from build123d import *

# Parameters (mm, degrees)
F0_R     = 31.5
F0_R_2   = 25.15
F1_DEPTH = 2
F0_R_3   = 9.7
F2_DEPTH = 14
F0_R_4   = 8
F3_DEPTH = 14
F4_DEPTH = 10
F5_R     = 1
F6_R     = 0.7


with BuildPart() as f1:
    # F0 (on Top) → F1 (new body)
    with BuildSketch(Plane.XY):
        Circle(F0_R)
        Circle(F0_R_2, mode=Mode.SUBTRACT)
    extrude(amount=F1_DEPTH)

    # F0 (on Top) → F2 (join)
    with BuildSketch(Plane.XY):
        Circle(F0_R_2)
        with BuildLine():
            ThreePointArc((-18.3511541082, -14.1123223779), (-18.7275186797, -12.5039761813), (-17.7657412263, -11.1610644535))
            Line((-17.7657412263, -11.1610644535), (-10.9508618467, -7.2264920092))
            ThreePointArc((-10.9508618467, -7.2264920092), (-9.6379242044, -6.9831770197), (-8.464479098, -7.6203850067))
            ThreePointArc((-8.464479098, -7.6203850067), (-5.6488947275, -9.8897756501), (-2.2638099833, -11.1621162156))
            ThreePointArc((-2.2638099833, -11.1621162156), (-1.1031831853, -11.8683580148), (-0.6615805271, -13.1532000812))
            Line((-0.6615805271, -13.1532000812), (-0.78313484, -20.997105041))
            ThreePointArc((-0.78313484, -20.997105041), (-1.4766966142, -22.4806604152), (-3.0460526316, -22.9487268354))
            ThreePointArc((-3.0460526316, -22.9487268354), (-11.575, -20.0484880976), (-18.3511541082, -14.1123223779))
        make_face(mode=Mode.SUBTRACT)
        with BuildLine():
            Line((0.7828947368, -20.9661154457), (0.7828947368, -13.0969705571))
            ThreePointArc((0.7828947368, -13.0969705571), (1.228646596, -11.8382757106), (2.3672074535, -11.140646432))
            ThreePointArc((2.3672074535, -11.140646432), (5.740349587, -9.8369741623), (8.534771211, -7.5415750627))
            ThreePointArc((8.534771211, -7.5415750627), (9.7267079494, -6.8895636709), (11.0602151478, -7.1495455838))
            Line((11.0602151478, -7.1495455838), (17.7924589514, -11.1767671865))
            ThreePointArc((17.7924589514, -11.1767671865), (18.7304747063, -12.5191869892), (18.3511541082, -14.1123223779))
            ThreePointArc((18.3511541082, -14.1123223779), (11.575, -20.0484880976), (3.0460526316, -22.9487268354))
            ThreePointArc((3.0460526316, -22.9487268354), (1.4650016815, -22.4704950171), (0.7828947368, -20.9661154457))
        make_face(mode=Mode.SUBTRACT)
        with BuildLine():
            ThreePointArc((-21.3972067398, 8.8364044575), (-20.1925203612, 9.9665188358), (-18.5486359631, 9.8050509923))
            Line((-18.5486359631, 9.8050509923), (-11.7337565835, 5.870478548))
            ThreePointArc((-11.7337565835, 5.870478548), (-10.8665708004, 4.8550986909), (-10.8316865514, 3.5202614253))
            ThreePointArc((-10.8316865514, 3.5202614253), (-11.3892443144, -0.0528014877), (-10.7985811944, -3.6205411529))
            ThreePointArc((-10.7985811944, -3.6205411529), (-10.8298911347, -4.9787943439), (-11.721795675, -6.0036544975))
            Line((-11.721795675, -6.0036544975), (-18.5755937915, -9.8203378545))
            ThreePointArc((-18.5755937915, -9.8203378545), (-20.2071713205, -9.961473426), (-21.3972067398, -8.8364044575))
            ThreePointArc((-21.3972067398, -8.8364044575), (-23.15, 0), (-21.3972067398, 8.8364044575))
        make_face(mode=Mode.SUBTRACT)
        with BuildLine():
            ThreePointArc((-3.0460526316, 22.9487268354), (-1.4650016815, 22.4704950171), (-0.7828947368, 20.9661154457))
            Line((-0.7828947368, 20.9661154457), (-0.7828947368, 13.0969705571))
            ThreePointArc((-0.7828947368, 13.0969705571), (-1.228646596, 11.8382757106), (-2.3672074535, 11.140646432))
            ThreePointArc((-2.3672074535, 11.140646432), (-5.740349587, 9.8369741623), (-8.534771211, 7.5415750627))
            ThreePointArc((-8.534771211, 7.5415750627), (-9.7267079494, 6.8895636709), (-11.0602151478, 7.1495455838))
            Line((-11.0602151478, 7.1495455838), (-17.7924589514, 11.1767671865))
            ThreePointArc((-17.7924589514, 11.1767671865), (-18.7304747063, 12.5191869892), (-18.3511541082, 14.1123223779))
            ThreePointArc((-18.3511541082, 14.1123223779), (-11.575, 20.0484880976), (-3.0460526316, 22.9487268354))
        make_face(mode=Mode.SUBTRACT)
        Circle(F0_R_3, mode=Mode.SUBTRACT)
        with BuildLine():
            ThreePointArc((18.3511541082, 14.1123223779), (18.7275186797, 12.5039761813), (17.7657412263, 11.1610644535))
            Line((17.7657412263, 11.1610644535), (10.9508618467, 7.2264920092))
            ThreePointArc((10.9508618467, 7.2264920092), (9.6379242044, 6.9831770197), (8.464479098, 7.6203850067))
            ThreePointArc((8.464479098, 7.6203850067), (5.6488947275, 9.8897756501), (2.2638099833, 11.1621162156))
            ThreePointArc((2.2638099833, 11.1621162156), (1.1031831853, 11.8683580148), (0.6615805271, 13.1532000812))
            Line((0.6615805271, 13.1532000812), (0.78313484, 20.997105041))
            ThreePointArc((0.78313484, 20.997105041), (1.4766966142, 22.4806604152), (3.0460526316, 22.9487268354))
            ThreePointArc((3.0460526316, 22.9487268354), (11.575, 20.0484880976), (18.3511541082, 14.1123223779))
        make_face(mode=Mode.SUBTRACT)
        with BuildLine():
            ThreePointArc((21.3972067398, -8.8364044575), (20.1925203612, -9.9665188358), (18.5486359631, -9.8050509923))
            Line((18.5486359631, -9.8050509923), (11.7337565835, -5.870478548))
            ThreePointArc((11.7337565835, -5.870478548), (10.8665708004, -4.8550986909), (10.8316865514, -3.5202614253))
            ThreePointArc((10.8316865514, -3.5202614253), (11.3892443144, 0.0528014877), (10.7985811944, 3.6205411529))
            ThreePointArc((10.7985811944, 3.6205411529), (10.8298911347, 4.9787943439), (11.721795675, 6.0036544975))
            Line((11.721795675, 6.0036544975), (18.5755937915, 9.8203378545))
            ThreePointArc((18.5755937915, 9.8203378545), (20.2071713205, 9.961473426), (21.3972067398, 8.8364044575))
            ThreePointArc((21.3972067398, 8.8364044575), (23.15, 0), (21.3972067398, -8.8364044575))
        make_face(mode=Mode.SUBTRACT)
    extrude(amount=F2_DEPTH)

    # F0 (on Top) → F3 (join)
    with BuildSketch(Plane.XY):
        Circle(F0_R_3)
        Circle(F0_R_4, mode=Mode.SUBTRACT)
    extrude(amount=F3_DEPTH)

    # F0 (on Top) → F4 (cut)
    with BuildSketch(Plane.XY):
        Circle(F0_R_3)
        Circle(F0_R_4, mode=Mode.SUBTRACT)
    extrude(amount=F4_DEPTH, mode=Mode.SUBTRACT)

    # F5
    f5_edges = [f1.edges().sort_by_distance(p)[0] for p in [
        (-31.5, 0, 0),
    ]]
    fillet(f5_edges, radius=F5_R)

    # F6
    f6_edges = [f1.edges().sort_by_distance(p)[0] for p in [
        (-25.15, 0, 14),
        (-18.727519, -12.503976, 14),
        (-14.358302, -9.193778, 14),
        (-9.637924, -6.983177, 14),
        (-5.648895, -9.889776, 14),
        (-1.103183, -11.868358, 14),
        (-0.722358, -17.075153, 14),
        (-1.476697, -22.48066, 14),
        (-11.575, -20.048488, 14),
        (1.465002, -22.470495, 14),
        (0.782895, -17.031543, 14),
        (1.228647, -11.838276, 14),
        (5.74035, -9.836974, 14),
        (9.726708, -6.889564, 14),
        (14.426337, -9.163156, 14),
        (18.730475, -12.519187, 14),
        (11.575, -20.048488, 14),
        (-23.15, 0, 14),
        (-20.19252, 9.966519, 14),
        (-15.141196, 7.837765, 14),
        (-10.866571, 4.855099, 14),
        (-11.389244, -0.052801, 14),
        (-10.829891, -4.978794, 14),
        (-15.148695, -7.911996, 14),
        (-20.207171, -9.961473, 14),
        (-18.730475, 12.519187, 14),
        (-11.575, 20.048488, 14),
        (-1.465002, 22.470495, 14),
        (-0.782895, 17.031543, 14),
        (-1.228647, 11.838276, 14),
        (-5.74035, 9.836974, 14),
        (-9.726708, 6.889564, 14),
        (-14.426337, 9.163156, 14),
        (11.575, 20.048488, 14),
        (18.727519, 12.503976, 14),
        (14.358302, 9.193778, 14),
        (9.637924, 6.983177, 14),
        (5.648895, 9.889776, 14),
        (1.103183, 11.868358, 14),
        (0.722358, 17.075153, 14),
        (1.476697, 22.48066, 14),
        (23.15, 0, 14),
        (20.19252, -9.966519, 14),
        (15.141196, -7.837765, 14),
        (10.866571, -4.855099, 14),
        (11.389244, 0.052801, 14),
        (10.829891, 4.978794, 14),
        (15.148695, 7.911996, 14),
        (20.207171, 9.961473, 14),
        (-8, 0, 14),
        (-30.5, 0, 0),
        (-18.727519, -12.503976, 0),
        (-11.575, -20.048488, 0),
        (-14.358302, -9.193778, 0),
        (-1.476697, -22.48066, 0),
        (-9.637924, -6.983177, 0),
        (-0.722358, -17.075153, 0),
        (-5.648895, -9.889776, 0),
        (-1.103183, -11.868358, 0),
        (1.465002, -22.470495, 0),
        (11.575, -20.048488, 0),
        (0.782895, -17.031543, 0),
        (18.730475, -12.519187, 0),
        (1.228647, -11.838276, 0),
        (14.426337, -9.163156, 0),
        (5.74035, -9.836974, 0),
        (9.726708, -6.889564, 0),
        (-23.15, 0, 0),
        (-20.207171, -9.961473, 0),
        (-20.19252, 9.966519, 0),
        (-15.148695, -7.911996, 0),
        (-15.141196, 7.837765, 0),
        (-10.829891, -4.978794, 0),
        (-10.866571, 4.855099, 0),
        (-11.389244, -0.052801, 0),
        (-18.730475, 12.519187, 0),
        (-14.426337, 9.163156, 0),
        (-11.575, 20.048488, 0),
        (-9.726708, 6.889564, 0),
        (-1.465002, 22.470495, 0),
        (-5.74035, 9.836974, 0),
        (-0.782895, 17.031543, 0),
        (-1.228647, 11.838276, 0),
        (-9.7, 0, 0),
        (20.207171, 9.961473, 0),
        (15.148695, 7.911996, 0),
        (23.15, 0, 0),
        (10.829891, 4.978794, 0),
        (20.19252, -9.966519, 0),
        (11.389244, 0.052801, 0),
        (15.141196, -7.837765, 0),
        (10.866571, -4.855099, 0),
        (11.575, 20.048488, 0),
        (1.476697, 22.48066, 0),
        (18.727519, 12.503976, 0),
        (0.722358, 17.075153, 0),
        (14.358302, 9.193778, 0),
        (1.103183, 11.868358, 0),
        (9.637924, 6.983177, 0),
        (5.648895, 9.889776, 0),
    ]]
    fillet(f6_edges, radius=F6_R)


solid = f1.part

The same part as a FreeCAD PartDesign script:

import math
import FreeCAD as App
import Part
import Sketcher
from FreeCAD import Vector
Q = App.Units.Quantity


def edges_at(feature, points):
    """Names of the edges that pass closest to the given points."""
    edges = feature.Shape.Edges
    near = lambda p: min(range(len(edges)), key=lambda i: edges[i].distToShape(Part.Vertex(*p))[0])
    return sorted({f"Edge{near(p) + 1}" for p in points})

doc = App.newDocument("Part")
body = doc.addObject("PartDesign::Body", "Body")

# Sketch on XY plane
sketch1 = doc.addObject("Sketcher::SketchObject", "Sketch")
body.addObject(sketch1)
sketch1.AttachmentSupport = (doc.XY_Plane, [""])
sketch1.MapMode = "FlatFace"
sketch1.addGeometry([
    Part.Circle(Vector(0, 0, 0), Vector(0, 0, 1), 31.5),
    Part.Circle(Vector(0, 0, 0), Vector(0, 0, 1), 25.15),
], False)
sketch1.addConstraint([
    Sketcher.Constraint("Coincident", 0, 3, -1, 1),
    Sketcher.Constraint("Coincident", 1, 3, -1, 1),
    Sketcher.Constraint("Diameter", 0, Q("63 mm")),
    Sketcher.Constraint("Diameter", 1, Q("50.3 mm")),
])
pad1 = doc.addObject("PartDesign::Pad", "Pad")
body.addObject(pad1)
pad1.Profile = sketch1
pad1.Length = 2

# Sketch on XY plane
sketch2 = doc.addObject("Sketcher::SketchObject", "Sketch001")
body.addObject(sketch2)
sketch2.AttachmentSupport = (doc.XY_Plane, [""])
sketch2.MapMode = "FlatFace"
sketch2.addGeometry([
    Part.Circle(Vector(0, 0, 0), Vector(0, 0, 1), 25.15),  # 0
    Part.ArcOfCircle(Part.Circle(Vector(0, 0, 0), Vector(0, 0, 1), 23.15), math.radians(-142.439157), math.radians(-97.560843)),  # 1
    Part.ArcOfCircle(Part.Circle(Vector(-16.765741, -12.893115, 0), Vector(0, 0, 1), 2), math.radians(120), math.radians(217.560843)),  # 2
    Part.LineSegment(Vector(-17.765741, -11.161064, 0), Vector(-10.950862, -7.226492, 0)),  # 3
    Part.ArcOfCircle(Part.Circle(Vector(-9.950862, -8.958543, 0), Vector(0, 0, 1), 2), math.radians(41.996014), math.radians(120)),  # 4
    Part.ArcOfCircle(Part.Circle(Vector(0, 0, 0), Vector(0, 0, 1), 11.389367), math.radians(-138.003986), math.radians(-101.464762)),  # 5
    Part.ArcOfCircle(Part.Circle(Vector(-2.66134, -13.12221, 0), Vector(0, 0, 1), 2), math.radians(-0.887822), math.radians(78.535238)),  # 6
    Part.LineSegment(Vector(-0.661581, -13.1532, 0), Vector(-0.783135, -20.997105, 0)),  # 7
    Part.ArcOfCircle(Part.Circle(Vector(-2.782895, -20.966115, 0), Vector(0, 0, 1), 2), math.radians(-97.560843), math.radians(-0.887822)),  # 8
    Part.ArcOfCircle(Part.Circle(Vector(2.782895, -20.966115, 0), Vector(0, 0, 1), 2), math.radians(180), math.radians(277.560843)),  # 9
    Part.LineSegment(Vector(0.782895, -20.966115, 0), Vector(0.782895, -13.096971, 0)),  # 10
    Part.ArcOfCircle(Part.Circle(Vector(2.782895, -13.096971, 0), Vector(0, 0, 1), 2), math.radians(101.996014), math.radians(180)),  # 11
    Part.ArcOfCircle(Part.Circle(Vector(0, 0, 0), Vector(0, 0, 1), 11.389367), math.radians(-78.003986), math.radians(-41.464762)),  # 12
    Part.ArcOfCircle(Part.Circle(Vector(10.033497, -8.865894, 0), Vector(0, 0, 1), 2), math.radians(59.112178), math.radians(138.535238)),  # 13
    Part.LineSegment(Vector(11.060215, -7.149546, 0), Vector(17.792459, -11.176767, 0)),  # 14
    Part.ArcOfCircle(Part.Circle(Vector(16.765741, -12.893115, 0), Vector(0, 0, 1), 2), math.radians(-37.560843), math.radians(59.112178)),  # 15
    Part.ArcOfCircle(Part.Circle(Vector(0, 0, 0), Vector(0, 0, 1), 23.15), math.radians(-82.439157), math.radians(-37.560843)),  # 16
    Part.Circle(Vector(0, 0, 0), Vector(0, 0, 1), 9.7),  # 17
    Part.ArcOfCircle(Part.Circle(Vector(0, 0, 0), Vector(0, 0, 1), 23.15), math.radians(-22.439157), math.radians(22.439157)),  # 18
    Part.ArcOfCircle(Part.Circle(Vector(19.548636, -8.073, 0), Vector(0, 0, 1), 2), math.radians(-120), math.radians(-22.439157)),  # 19
    Part.LineSegment(Vector(18.548636, -9.805051, 0), Vector(11.733757, -5.870479, 0)),  # 20
    Part.ArcOfCircle(Part.Circle(Vector(12.733757, -4.138428, 0), Vector(0, 0, 1), 2), math.radians(161.996014), math.radians(240)),  # 21
    Part.ArcOfCircle(Part.Circle(Vector(0, 0, 0), Vector(0, 0, 1), 11.389367), math.radians(-18.003986), math.radians(18.535238)),  # 22
    Part.ArcOfCircle(Part.Circle(Vector(12.694838, 4.256317, 0), Vector(0, 0, 1), 2), math.radians(119.112178), math.radians(198.535238)),  # 23
    Part.LineSegment(Vector(11.721796, 6.003654, 0), Vector(18.575594, 9.820338, 0)),  # 24
    Part.ArcOfCircle(Part.Circle(Vector(19.548636, 8.073, 0), Vector(0, 0, 1), 2), math.radians(22.439157), math.radians(119.112178)),  # 25
    Part.ArcOfCircle(Part.Circle(Vector(0, 0, 0), Vector(0, 0, 1), 23.15), math.radians(157.560843), math.radians(202.439157)),  # 26
    Part.ArcOfCircle(Part.Circle(Vector(-19.548636, 8.073, 0), Vector(0, 0, 1), 2), math.radians(60), math.radians(157.560843)),  # 27
    Part.LineSegment(Vector(-18.548636, 9.805051, 0), Vector(-11.733757, 5.870479, 0)),  # 28
    Part.ArcOfCircle(Part.Circle(Vector(-12.733757, 4.138428, 0), Vector(0, 0, 1), 2), math.radians(-18.003986), math.radians(60)),  # 29
    Part.ArcOfCircle(Part.Circle(Vector(0, 0, 0), Vector(0, 0, 1), 11.389367), math.radians(161.996014), math.radians(198.535238)),  # 30
    Part.ArcOfCircle(Part.Circle(Vector(-12.694838, -4.256317, 0), Vector(0, 0, 1), 2), math.radians(-60.887822), math.radians(18.535238)),  # 31
    Part.LineSegment(Vector(-11.721796, -6.003654, 0), Vector(-18.575594, -9.820338, 0)),  # 32
    Part.ArcOfCircle(Part.Circle(Vector(-19.548636, -8.073, 0), Vector(0, 0, 1), 2), math.radians(-157.560843), math.radians(-60.887822)),  # 33
    Part.ArcOfCircle(Part.Circle(Vector(0, 0, 0), Vector(0, 0, 1), 23.15), math.radians(97.560843), math.radians(142.439157)),  # 34
    Part.ArcOfCircle(Part.Circle(Vector(-2.782895, 20.966115, 0), Vector(0, 0, 1), 2), math.radians(0), math.radians(97.560843)),  # 35
    Part.LineSegment(Vector(-0.782895, 20.966115, 0), Vector(-0.782895, 13.096971, 0)),  # 36
    Part.ArcOfCircle(Part.Circle(Vector(-2.782895, 13.096971, 0), Vector(0, 0, 1), 2), math.radians(-78.003986), math.radians(0)),  # 37
    Part.ArcOfCircle(Part.Circle(Vector(0, 0, 0), Vector(0, 0, 1), 11.389367), math.radians(101.996014), math.radians(138.535238)),  # 38
    Part.ArcOfCircle(Part.Circle(Vector(-10.033497, 8.865894, 0), Vector(0, 0, 1), 2), math.radians(-120.887822), math.radians(-41.464762)),  # 39
    Part.LineSegment(Vector(-11.060215, 7.149546, 0), Vector(-17.792459, 11.176767, 0)),  # 40
    Part.ArcOfCircle(Part.Circle(Vector(-16.765741, 12.893115, 0), Vector(0, 0, 1), 2), math.radians(142.439157), math.radians(239.112178)),  # 41
    Part.ArcOfCircle(Part.Circle(Vector(0, 0, 0), Vector(0, 0, 1), 23.15), math.radians(37.560843), math.radians(82.439157)),  # 42
    Part.ArcOfCircle(Part.Circle(Vector(16.765741, 12.893115, 0), Vector(0, 0, 1), 2), math.radians(-60), math.radians(37.560843)),  # 43
    Part.LineSegment(Vector(17.765741, 11.161064, 0), Vector(10.950862, 7.226492, 0)),  # 44
    Part.ArcOfCircle(Part.Circle(Vector(9.950862, 8.958543, 0), Vector(0, 0, 1), 2), math.radians(-138.003986), math.radians(-60)),  # 45
    Part.ArcOfCircle(Part.Circle(Vector(0, 0, 0), Vector(0, 0, 1), 11.389367), math.radians(41.996014), math.radians(78.535238)),  # 46
    Part.ArcOfCircle(Part.Circle(Vector(2.66134, 13.12221, 0), Vector(0, 0, 1), 2), math.radians(179.112178), math.radians(258.535238)),  # 47
    Part.LineSegment(Vector(0.661581, 13.1532, 0), Vector(0.783135, 20.997105, 0)),  # 48
    Part.ArcOfCircle(Part.Circle(Vector(2.782895, 20.966115, 0), Vector(0, 0, 1), 2), math.radians(82.439157), math.radians(179.112178)),  # 49
], False)
sketch2.addConstraint([
    Sketcher.Constraint("Tangent", 1, 1, 2, 2),
    Sketcher.Constraint("Tangent", 2, 1, 3, 1),
    Sketcher.Constraint("Tangent", 3, 2, 4, 2),
    Sketcher.Constraint("Tangent", 4, 1, 5, 1),
    Sketcher.Constraint("Tangent", 5, 2, 6, 2),
    Sketcher.Constraint("Tangent", 6, 1, 7, 1),
    Sketcher.Constraint("Tangent", 7, 2, 8, 2),
    Sketcher.Constraint("Tangent", 8, 1, 1, 2),
    Sketcher.Constraint("Tangent", 9, 1, 10, 1),
    Sketcher.Constraint("Tangent", 10, 2, 11, 2),
    Sketcher.Constraint("Tangent", 11, 1, 12, 1),
    Sketcher.Constraint("Tangent", 12, 2, 13, 2),
    Sketcher.Constraint("Tangent", 13, 1, 14, 1),
    Sketcher.Constraint("Tangent", 14, 2, 15, 2),
    Sketcher.Constraint("Tangent", 15, 1, 16, 2),
    Sketcher.Constraint("Tangent", 16, 1, 9, 2),
    Sketcher.Constraint("Tangent", 18, 1, 19, 2),
    Sketcher.Constraint("Tangent", 19, 1, 20, 1),
    Sketcher.Constraint("Tangent", 20, 2, 21, 2),
    Sketcher.Constraint("Tangent", 21, 1, 22, 1),
    Sketcher.Constraint("Tangent", 22, 2, 23, 2),
    Sketcher.Constraint("Tangent", 23, 1, 24, 1),
    Sketcher.Constraint("Tangent", 24, 2, 25, 2),
    Sketcher.Constraint("Tangent", 25, 1, 18, 2),
    Sketcher.Constraint("Tangent", 26, 1, 27, 2),
    Sketcher.Constraint("Tangent", 27, 1, 28, 1),
    Sketcher.Constraint("Tangent", 28, 2, 29, 2),
    Sketcher.Constraint("Tangent", 29, 1, 30, 1),
    Sketcher.Constraint("Tangent", 30, 2, 31, 2),
    Sketcher.Constraint("Tangent", 31, 1, 32, 1),
    Sketcher.Constraint("Tangent", 32, 2, 33, 2),
    Sketcher.Constraint("Tangent", 33, 1, 26, 2),
    Sketcher.Constraint("Tangent", 34, 1, 35, 2),
    Sketcher.Constraint("Tangent", 35, 1, 36, 1),
    Sketcher.Constraint("Tangent", 36, 2, 37, 2),
    Sketcher.Constraint("Tangent", 37, 1, 38, 1),
    Sketcher.Constraint("Tangent", 38, 2, 39, 2),
    Sketcher.Constraint("Tangent", 39, 1, 40, 1),
    Sketcher.Constraint("Tangent", 40, 2, 41, 2),
    Sketcher.Constraint("Tangent", 41, 1, 34, 2),
    Sketcher.Constraint("Tangent", 42, 1, 43, 2),
    Sketcher.Constraint("Tangent", 43, 1, 44, 1),
    Sketcher.Constraint("Tangent", 44, 2, 45, 2),
    Sketcher.Constraint("Tangent", 45, 1, 46, 1),
    Sketcher.Constraint("Tangent", 46, 2, 47, 2),
    Sketcher.Constraint("Tangent", 47, 1, 48, 1),
    Sketcher.Constraint("Tangent", 48, 2, 49, 2),
    Sketcher.Constraint("Tangent", 49, 1, 42, 2),
    Sketcher.Constraint("Vertical", 10),
    Sketcher.Constraint("Vertical", 36),
    Sketcher.Constraint("Coincident", 0, 3, -1, 1),
    Sketcher.Constraint("Coincident", 1, 3, -1, 1),
    Sketcher.Constraint("Coincident", 5, 3, -1, 1),
    Sketcher.Constraint("Coincident", 12, 3, -1, 1),
    Sketcher.Constraint("Coincident", 16, 3, -1, 1),
    Sketcher.Constraint("Coincident", 17, 3, -1, 1),
    Sketcher.Constraint("Coincident", 18, 3, -1, 1),
    Sketcher.Constraint("Coincident", 22, 3, -1, 1),
    Sketcher.Constraint("Coincident", 26, 3, -1, 1),
    Sketcher.Constraint("Coincident", 30, 3, -1, 1),
    Sketcher.Constraint("Coincident", 34, 3, -1, 1),
    Sketcher.Constraint("Coincident", 38, 3, -1, 1),
    Sketcher.Constraint("Coincident", 42, 3, -1, 1),
    Sketcher.Constraint("Coincident", 46, 3, -1, 1),
    Sketcher.Constraint("Equal", 2, 4),
    Sketcher.Constraint("Equal", 4, 6),
    Sketcher.Constraint("Equal", 6, 8),
    Sketcher.Constraint("Equal", 8, 9),
    Sketcher.Constraint("Equal", 9, 11),
    Sketcher.Constraint("Equal", 5, 12),
    Sketcher.Constraint("Equal", 11, 13),
    Sketcher.Constraint("Equal", 13, 15),
    Sketcher.Constraint("Equal", 1, 16),
    Sketcher.Constraint("Equal", 16, 18),
    Sketcher.Constraint("Equal", 15, 19),
    Sketcher.Constraint("Equal", 19, 21),
    Sketcher.Constraint("Equal", 12, 22),
    Sketcher.Constraint("Equal", 21, 23),
    Sketcher.Constraint("Equal", 23, 25),
    Sketcher.Constraint("Equal", 18, 26),
    Sketcher.Constraint("Equal", 25, 27),
    Sketcher.Constraint("Equal", 27, 29),
    Sketcher.Constraint("Equal", 22, 30),
    Sketcher.Constraint("Equal", 29, 31),
    Sketcher.Constraint("Equal", 31, 33),
    Sketcher.Constraint("Equal", 26, 34),
    Sketcher.Constraint("Equal", 33, 35),
    Sketcher.Constraint("Equal", 35, 37),
    Sketcher.Constraint("Equal", 30, 38),
    Sketcher.Constraint("Equal", 37, 39),
    Sketcher.Constraint("Equal", 39, 41),
    Sketcher.Constraint("Equal", 34, 42),
    Sketcher.Constraint("Equal", 41, 43),
    Sketcher.Constraint("Equal", 43, 45),
    Sketcher.Constraint("Equal", 38, 46),
    Sketcher.Constraint("Equal", 45, 47),
    Sketcher.Constraint("Equal", 47, 49),
    Sketcher.Constraint("Symmetric", 19, 1, 27, 1, -1, 1),
    Sketcher.Constraint("Symmetric", 23, 1, 31, 1, -1, 1),
    Sketcher.Constraint("Symmetric", 13, 1, 39, 1, -1, 1),
    Sketcher.Constraint("Symmetric", 2, 1, 43, 1, -1, 1),
    Sketcher.Constraint("Symmetric", 6, 1, 47, 1, -1, 1),
    Sketcher.Constraint("Horizontal", 8, 3, 9, 3),
    Sketcher.Constraint("Horizontal", 2, 3, 15, 3),
    Sketcher.Constraint("Horizontal", 25, 3, 27, 3),
    Sketcher.Constraint("Horizontal", 35, 3, 49, 3),
    Sketcher.Constraint("Equal", 7, 14),
    Sketcher.Constraint("Equal", 3, 20),
    Sketcher.Constraint("Equal", 14, 24),
    Sketcher.Constraint("Radius", 2, Q("2 mm")),
    Sketcher.Constraint("Diameter", 0, Q("50.3 mm")),
    Sketcher.Constraint("Diameter", 17, Q("19.4 mm")),
    Sketcher.Constraint("Angle", 3, Q("30 deg")),
    Sketcher.Constraint("Angle", 20, Q("150 deg")),
    Sketcher.Constraint("Radius", 1, Q("23.15 mm")),
    Sketcher.Constraint("DistanceY", 19, 3, -1, 1, Q("8.073 mm")),
    Sketcher.Constraint("Radius", 5, Q("11.389367 mm")),
    Sketcher.Constraint("DistanceY", 6, 1, -1, 1, Q("13.1532 mm")),
    Sketcher.Constraint("DistanceY", 10, 1, 10, 2, Q("7.869145 mm")),
])
pad2 = doc.addObject("PartDesign::Pad", "Pad001")
body.addObject(pad2)
pad2.Profile = sketch2
pad2.Length = 14

# Sketch on XY plane
sketch3 = doc.addObject("Sketcher::SketchObject", "Sketch002")
body.addObject(sketch3)
sketch3.AttachmentSupport = (doc.XY_Plane, [""])
sketch3.MapMode = "FlatFace"
sketch3.addGeometry([
    Part.Circle(Vector(0, 0, 0), Vector(0, 0, 1), 9.7),
    Part.Circle(Vector(0, 0, 0), Vector(0, 0, 1), 8),
], False)
sketch3.addConstraint([
    Sketcher.Constraint("Coincident", 0, 3, -1, 1),
    Sketcher.Constraint("Coincident", 1, 3, -1, 1),
    Sketcher.Constraint("Diameter", 1, Q("16 mm")),
    Sketcher.Constraint("Diameter", 0, Q("19.4 mm")),
])
pad3 = doc.addObject("PartDesign::Pad", "Pad002")
body.addObject(pad3)
pad3.Profile = sketch3
pad3.Length = 14

# Sketch on XY plane
sketch4 = doc.addObject("Sketcher::SketchObject", "Sketch003")
body.addObject(sketch4)
sketch4.AttachmentSupport = (doc.XY_Plane, [""])
sketch4.MapMode = "FlatFace"
sketch4.addGeometry([
    Part.Circle(Vector(0, 0, 0), Vector(0, 0, 1), 9.7),
    Part.Circle(Vector(0, 0, 0), Vector(0, 0, 1), 8),
], False)
sketch4.addConstraint([
    Sketcher.Constraint("Coincident", 0, 3, -1, 1),
    Sketcher.Constraint("Coincident", 1, 3, -1, 1),
    Sketcher.Constraint("Diameter", 1, Q("16 mm")),
    Sketcher.Constraint("Diameter", 0, Q("19.4 mm")),
])
pocket1 = doc.addObject("PartDesign::Pocket", "Pocket")
body.addObject(pocket1)
pocket1.Profile = sketch4
pocket1.Length = 10
pocket1.Reversed = True
doc.recompute()

fillet = doc.addObject("PartDesign::Fillet", "Fillet")
body.addObject(fillet)
fillet.Base = (pocket1, edges_at(pocket1, [(-31.5, 0, 0)]))
fillet.Radius = 1
doc.recompute()

fillet2 = doc.addObject("PartDesign::Fillet", "Fillet001")
body.addObject(fillet2)
fillet2.Base = (fillet, edges_at(fillet, [
    (-25.15, 0, 14),
    (-18.728, -12.504, 14),
    (-14.358, -9.194, 14),
    (-9.638, -6.983, 14),
    (-5.649, -9.89, 14),
    (-1.103, -11.868, 14),
    (-0.722, -17.075, 14),
    (-1.477, -22.481, 14),
    (-11.575, -20.048, 14),
    (1.465, -22.47, 14),
    (0.783, -17.032, 14),
    (1.229, -11.838, 14),
    (5.74, -9.837, 14),
    (9.727, -6.89, 14),
    (14.426, -9.163, 14),
    (18.73, -12.519, 14),
    (11.575, -20.048, 14),
    (-23.15, 0, 14),
    (-20.193, 9.967, 14),
    (-15.141, 7.838, 14),
    (-10.867, 4.855, 14),
    (-11.389, -0.053, 14),
    (-10.83, -4.979, 14),
    (-15.149, -7.912, 14),
    (-20.207, -9.961, 14),
    (-18.73, 12.519, 14),
    (-11.575, 20.048, 14),
    (-1.465, 22.47, 14),
    (-0.783, 17.032, 14),
    (-1.229, 11.838, 14),
    (-5.74, 9.837, 14),
    (-9.727, 6.89, 14),
    (-14.426, 9.163, 14),
    (11.575, 20.048, 14),
    (18.728, 12.504, 14),
    (14.358, 9.194, 14),
    (9.638, 6.983, 14),
    (5.649, 9.89, 14),
    (1.103, 11.868, 14),
    (0.722, 17.075, 14),
    (1.477, 22.481, 14),
    (23.15, 0, 14),
    (20.193, -9.967, 14),
    (15.141, -7.838, 14),
    (10.867, -4.855, 14),
    (11.389, 0.053, 14),
    (10.83, 4.979, 14),
    (15.149, 7.912, 14),
    (20.207, 9.961, 14),
    (-8, 0, 14),
    (-30.5, 0, 0),
    (-18.728, -12.504, 0),
    (-11.575, -20.048, 0),
    (-14.358, -9.194, 0),
    (-1.477, -22.481, 0),
    (-9.638, -6.983, 0),
    (-0.722, -17.075, 0),
    (-5.649, -9.89, 0),
    (-1.103, -11.868, 0),
    (1.465, -22.47, 0),
    (11.575, -20.048, 0),
    (0.783, -17.032, 0),
    (18.73, -12.519, 0),
    (1.229, -11.838, 0),
    (14.426, -9.163, 0),
    (5.74, -9.837, 0),
    (9.727, -6.89, 0),
    (-23.15, 0, 0),
    (-20.207, -9.961, 0),
    (-20.193, 9.967, 0),
    (-15.149, -7.912, 0),
    (-15.141, 7.838, 0),
    (-10.83, -4.979, 0),
    (-10.867, 4.855, 0),
    (-11.389, -0.053, 0),
    (-18.73, 12.519, 0),
    (-14.426, 9.163, 0),
    (-11.575, 20.048, 0),
    (-9.727, 6.89, 0),
    (-1.465, 22.47, 0),
    (-5.74, 9.837, 0),
    (-0.783, 17.032, 0),
    (-1.229, 11.838, 0),
    (-9.7, 0, 0),
    (20.207, 9.961, 0),
    (15.149, 7.912, 0),
    (23.15, 0, 0),
    (10.83, 4.979, 0),
    (20.193, -9.967, 0),
    (11.389, 0.053, 0),
    (15.141, -7.838, 0),
    (10.867, -4.855, 0),
    (11.575, 20.048, 0),
    (1.477, 22.481, 0),
    (18.728, 12.504, 0),
    (0.722, 17.075, 0),
    (14.358, 9.194, 0),
    (1.103, 11.868, 0),
    (9.638, 6.983, 0),
    (5.649, 9.89, 0),
]))
fillet2.Radius = 0.7

doc.recompute()
